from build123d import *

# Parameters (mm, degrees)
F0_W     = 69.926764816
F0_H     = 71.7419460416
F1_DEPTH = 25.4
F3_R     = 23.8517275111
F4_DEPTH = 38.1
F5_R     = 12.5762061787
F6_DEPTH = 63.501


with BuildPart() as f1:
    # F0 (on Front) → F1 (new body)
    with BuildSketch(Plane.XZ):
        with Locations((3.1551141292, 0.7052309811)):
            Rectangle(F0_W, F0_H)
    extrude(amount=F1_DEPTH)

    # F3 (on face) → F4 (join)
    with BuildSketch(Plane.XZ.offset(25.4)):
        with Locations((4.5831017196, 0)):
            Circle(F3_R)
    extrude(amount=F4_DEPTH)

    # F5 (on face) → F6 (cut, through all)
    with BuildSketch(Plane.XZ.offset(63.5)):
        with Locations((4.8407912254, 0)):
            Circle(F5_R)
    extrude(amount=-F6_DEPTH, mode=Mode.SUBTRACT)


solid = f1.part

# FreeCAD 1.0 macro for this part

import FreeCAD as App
import Part
import Sketcher

V = App.Vector
Q = App.Units.Quantity

doc = App.newDocument("Part")
body = doc.addObject("PartDesign::Body", "Body")

sketch1 = body.newObject("Sketcher::SketchObject", "Sketch")
sketch1.AttachmentSupport = (doc.getObject("XZ_Plane"), [""])
sketch1.MapMode = "FlatFace"
sketch1.addGeometry([
    Part.LineSegment(V(-32, 37, 0), V(-32, -35, 0)),
    Part.LineSegment(V(-32, -35, 0), V(38, -35, 0)),
    Part.LineSegment(V(38, -35, 0), V(38, 37, 0)),
    Part.LineSegment(V(38, 37, 0), V(-32, 37, 0)),
], False)
sketch1.addConstraint([
    Sketcher.Constraint("Coincident", 0, 2, 1, 1),
    Sketcher.Constraint("Coincident", 1, 2, 2, 1),
    Sketcher.Constraint("Coincident", 2, 2, 3, 1),
    Sketcher.Constraint("Coincident", 3, 2, 0, 1),
    Sketcher.Constraint("Vertical", 0),
    Sketcher.Constraint("Horizontal", 1),
    Sketcher.Constraint("Vertical", 2),
    Sketcher.Constraint("Horizontal", 3),
    Sketcher.Constraint("DistanceX", 1, 1, 1, 2, Q("69.926765 mm")),
    Sketcher.Constraint("DistanceY", 0, 2, 0, 1, Q("71.741946 mm")),
    Sketcher.Constraint("DistanceX", 0, 2, -1, 1, Q("31.808268 mm")),
    Sketcher.Constraint("DistanceY", 0, 2, -1, 1, Q("35.165742 mm")),
])
pad1 = body.newObject("PartDesign::Pad", "Pad")
pad1.Profile = sketch1
pad1.Length = Q("1 in")

sketch2 = body.newObject("Sketcher::SketchObject", "Sketch001")
sketch2.AttachmentSupport = (doc.getObject("XZ_Plane"), [""])
sketch2.MapMode = "FlatFace"
sketch2.AttachmentOffset = App.Placement(V(0, 0, 1 * 25.4), App.Rotation())
sketch2.addGeometry(Part.Circle(V(5, 0, 0), V(0, 0, 1), 24), False)
sketch2.addConstraint([
    Sketcher.Constraint("PointOnObject", 0, 3, -1),
    Sketcher.Constraint("Diameter", 0, Q("47.703455 mm")),
    Sketcher.Constraint("DistanceX", -1, 1, 0, 3, Q("4.583102 mm")),
])
pad2 = body.newObject("PartDesign::Pad", "Pad001")
pad2.Profile = sketch2
pad2.Length = Q("1.5 in")

sketch3 = body.newObject("Sketcher::SketchObject", "Sketch002")
sketch3.AttachmentSupport = (doc.getObject("XZ_Plane"), [""])
sketch3.MapMode = "FlatFace"
sketch3.AttachmentOffset = App.Placement(V(0, 0, 2.5 * 25.4), App.Rotation())
sketch3.addGeometry(Part.Circle(V(5, 0, 0), V(0, 0, 1), 13), False)
sketch3.addConstraint([
    Sketcher.Constraint("PointOnObject", 0, 3, -1),
    Sketcher.Constraint("Diameter", 0, Q("25.152412 mm")),
    Sketcher.Constraint("DistanceX", -1, 1, 0, 3, Q("4.840791 mm")),
])
pocket1 = body.newObject("PartDesign::Pocket", "Pocket")
pocket1.Profile = sketch3
pocket1.Type = "ThroughAll"

doc.recompute()
